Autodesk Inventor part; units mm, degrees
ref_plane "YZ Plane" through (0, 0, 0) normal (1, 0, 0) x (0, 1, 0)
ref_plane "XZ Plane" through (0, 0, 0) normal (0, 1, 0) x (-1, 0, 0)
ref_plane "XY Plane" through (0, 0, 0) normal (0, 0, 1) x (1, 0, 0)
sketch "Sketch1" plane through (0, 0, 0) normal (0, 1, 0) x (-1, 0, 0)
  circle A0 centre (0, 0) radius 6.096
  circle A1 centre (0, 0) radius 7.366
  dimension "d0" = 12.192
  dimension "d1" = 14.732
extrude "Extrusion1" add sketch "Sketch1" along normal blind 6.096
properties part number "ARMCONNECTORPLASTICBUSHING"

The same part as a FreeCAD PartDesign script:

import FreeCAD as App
import Part
import Sketcher
Q = App.Units.Quantity

doc = App.newDocument("Part")
body = doc.addObject("PartDesign::Body", "Body")

sketch1 = body.newObject("Sketcher::SketchObject", "Sketch")
sketch1.AttachmentSupport = (doc.getObject("XZ_Plane"), [""])
sketch1.MapMode = "FlatFace"
sketch1.addGeometry([
    Part.Circle(App.Vector(0, 0, 0), App.Vector(0, 0, 1), 7.366),
    Part.Circle(App.Vector(0, 0, 0), App.Vector(0, 0, 1), 6.096),
], False)
sketch1.addConstraint([
    Sketcher.Constraint("Coincident", 0, 3, -1, 1),
    Sketcher.Constraint("Coincident", 1, 3, -1, 1),
    Sketcher.Constraint("Diameter", 0, Q("0.58 in")),
    Sketcher.Constraint("Diameter", 1, Q("0.48 in")),
])
pad1 = body.newObject("PartDesign::Pad", "Pad")
pad1.Profile = sketch1
pad1.Length = Q("0.24 in")
pad1.Reversed = True

doc.recompute()
